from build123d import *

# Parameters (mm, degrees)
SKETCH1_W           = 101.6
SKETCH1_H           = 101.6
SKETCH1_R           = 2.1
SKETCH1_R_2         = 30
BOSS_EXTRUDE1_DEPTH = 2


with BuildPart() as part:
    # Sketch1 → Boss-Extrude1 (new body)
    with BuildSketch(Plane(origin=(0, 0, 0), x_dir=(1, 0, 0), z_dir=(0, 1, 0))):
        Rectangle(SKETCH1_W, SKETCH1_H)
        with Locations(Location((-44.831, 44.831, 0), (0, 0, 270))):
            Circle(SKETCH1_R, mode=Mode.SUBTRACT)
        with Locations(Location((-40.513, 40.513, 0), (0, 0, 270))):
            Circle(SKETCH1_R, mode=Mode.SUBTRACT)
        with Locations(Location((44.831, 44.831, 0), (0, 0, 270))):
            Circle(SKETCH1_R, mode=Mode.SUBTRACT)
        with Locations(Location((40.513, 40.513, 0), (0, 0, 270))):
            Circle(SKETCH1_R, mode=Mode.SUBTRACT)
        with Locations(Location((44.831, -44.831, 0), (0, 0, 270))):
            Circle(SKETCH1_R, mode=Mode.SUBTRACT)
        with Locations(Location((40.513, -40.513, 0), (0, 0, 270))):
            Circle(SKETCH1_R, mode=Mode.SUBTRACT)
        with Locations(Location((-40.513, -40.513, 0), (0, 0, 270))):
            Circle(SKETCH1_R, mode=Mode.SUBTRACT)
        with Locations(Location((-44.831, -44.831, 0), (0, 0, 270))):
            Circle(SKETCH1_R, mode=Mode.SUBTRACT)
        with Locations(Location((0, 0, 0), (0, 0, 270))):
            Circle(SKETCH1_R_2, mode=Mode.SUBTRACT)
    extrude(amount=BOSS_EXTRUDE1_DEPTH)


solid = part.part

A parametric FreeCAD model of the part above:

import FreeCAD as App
import Part
import Sketcher
from FreeCAD import Vector
Q = App.Units.Quantity


def add_polygon(sketch, points):
    """Adds a closed chain of lines whose ends are joined by coincident constraints."""
    first, n = sketch.GeometryCount, len(points)
    for a, b in zip(points, points[1:] + points[:1]):
        sketch.addGeometry(Part.LineSegment(App.Vector(*a, 0), App.Vector(*b, 0)), False)
    for i in range(n):
        sketch.addConstraint(Sketcher.Constraint("Coincident", first + i, 2, first + (i + 1) % n, 1))

doc = App.newDocument("Part")
body = doc.addObject("PartDesign::Body", "Body")

# Sketch on XZ plane
sketch1 = doc.addObject("Sketcher::SketchObject", "Sketch")
body.addObject(sketch1)
sketch1.AttachmentSupport = (doc.XZ_Plane, [""])
sketch1.MapMode = "FlatFace"
add_polygon(sketch1, [(-50.8, -50.8), (-50.8, 50.8), (50.8, 50.8), (50.8, -50.8)])  # lines 0-3
sketch1.addGeometry(Part.Circle(Vector(-44.831, 44.831, 0), Vector(0, 0, 1), 2.1), False)  # 4
sketch1.addGeometry(Part.Circle(Vector(-40.513, 40.513, 0), Vector(0, 0, 1), 2.1), False)  # 5
sketch1.addGeometry(Part.Circle(Vector(44.831, 44.831, 0), Vector(0, 0, 1), 2.1), False)  # 6
sketch1.addGeometry(Part.Circle(Vector(40.513, 40.513, 0), Vector(0, 0, 1), 2.1), False)  # 7
sketch1.addGeometry(Part.Circle(Vector(-40.513, -40.513, 0), Vector(0, 0, 1), 2.1), False)  # 8
sketch1.addGeometry(Part.Circle(Vector(-44.831, -44.831, 0), Vector(0, 0, 1), 2.1), False)  # 9
sketch1.addGeometry(Part.Circle(Vector(0, 0, 0), Vector(0, 0, 1), 30), False)  # 10
sketch1.addGeometry(Part.Circle(Vector(40.513, -40.513, 0), Vector(0, 0, 1), 2.1), False)  # 11
sketch1.addGeometry(Part.Circle(Vector(44.831, -44.831, 0), Vector(0, 0, 1), 2.1), False)  # 12
sketch1.addConstraint([
    Sketcher.Constraint("Vertical", 0),
    Sketcher.Constraint("Horizontal", 1),
    Sketcher.Constraint("Vertical", 2),
    Sketcher.Constraint("Horizontal", 3),
    Sketcher.Constraint("Coincident", 10, 3, -1, 1),
    Sketcher.Constraint("Equal", 4, 5),
    Sketcher.Constraint("Equal", 5, 6),
    Sketcher.Constraint("Equal", 6, 7),
    Sketcher.Constraint("Equal", 7, 8),
    Sketcher.Constraint("Equal", 8, 9),
    Sketcher.Constraint("Equal", 9, 11),
    Sketcher.Constraint("Equal", 11, 12),
    Sketcher.Constraint("Symmetric", 7, 3, 8, 3, -1, 1),
    Sketcher.Constraint("Symmetric", 6, 3, 9, 3, -1, 1),
    Sketcher.Constraint("Symmetric", 5, 3, 11, 3, -1, 1),
    Sketcher.Constraint("Symmetric", 4, 3, 12, 3, -1, 1),
    Sketcher.Constraint("Symmetric", 0, 2, 2, 2, -1, 1),
    Sketcher.Constraint("Symmetric", 4, 3, 6, 3, -2),
    Sketcher.Constraint("Symmetric", 5, 3, 7, 3, -2),
    Sketcher.Constraint("Equal", 3, 0),
    Sketcher.Constraint("Diameter", 10, Q("60 mm")),
    Sketcher.Constraint("Diameter", 4, Q("4.2 mm")),
    Sketcher.Constraint("DistanceX", 1, 1, 1, 2, Q("101.6 mm")),
    Sketcher.Constraint("DistanceX", 4, 3, -1, 1, Q("44.831 mm")),
    Sketcher.Constraint("DistanceY", -1, 1, 4, 3, Q("44.831 mm")),
    Sketcher.Constraint("DistanceX", 5, 3, -1, 1, Q("40.513 mm")),
    Sketcher.Constraint("DistanceY", -1, 1, 5, 3, Q("40.513 mm")),
])
pad1 = doc.addObject("PartDesign::Pad", "Pad")
body.addObject(pad1)
pad1.Profile = sketch1
pad1.Length = 2
pad1.Reversed = True

doc.recompute()
